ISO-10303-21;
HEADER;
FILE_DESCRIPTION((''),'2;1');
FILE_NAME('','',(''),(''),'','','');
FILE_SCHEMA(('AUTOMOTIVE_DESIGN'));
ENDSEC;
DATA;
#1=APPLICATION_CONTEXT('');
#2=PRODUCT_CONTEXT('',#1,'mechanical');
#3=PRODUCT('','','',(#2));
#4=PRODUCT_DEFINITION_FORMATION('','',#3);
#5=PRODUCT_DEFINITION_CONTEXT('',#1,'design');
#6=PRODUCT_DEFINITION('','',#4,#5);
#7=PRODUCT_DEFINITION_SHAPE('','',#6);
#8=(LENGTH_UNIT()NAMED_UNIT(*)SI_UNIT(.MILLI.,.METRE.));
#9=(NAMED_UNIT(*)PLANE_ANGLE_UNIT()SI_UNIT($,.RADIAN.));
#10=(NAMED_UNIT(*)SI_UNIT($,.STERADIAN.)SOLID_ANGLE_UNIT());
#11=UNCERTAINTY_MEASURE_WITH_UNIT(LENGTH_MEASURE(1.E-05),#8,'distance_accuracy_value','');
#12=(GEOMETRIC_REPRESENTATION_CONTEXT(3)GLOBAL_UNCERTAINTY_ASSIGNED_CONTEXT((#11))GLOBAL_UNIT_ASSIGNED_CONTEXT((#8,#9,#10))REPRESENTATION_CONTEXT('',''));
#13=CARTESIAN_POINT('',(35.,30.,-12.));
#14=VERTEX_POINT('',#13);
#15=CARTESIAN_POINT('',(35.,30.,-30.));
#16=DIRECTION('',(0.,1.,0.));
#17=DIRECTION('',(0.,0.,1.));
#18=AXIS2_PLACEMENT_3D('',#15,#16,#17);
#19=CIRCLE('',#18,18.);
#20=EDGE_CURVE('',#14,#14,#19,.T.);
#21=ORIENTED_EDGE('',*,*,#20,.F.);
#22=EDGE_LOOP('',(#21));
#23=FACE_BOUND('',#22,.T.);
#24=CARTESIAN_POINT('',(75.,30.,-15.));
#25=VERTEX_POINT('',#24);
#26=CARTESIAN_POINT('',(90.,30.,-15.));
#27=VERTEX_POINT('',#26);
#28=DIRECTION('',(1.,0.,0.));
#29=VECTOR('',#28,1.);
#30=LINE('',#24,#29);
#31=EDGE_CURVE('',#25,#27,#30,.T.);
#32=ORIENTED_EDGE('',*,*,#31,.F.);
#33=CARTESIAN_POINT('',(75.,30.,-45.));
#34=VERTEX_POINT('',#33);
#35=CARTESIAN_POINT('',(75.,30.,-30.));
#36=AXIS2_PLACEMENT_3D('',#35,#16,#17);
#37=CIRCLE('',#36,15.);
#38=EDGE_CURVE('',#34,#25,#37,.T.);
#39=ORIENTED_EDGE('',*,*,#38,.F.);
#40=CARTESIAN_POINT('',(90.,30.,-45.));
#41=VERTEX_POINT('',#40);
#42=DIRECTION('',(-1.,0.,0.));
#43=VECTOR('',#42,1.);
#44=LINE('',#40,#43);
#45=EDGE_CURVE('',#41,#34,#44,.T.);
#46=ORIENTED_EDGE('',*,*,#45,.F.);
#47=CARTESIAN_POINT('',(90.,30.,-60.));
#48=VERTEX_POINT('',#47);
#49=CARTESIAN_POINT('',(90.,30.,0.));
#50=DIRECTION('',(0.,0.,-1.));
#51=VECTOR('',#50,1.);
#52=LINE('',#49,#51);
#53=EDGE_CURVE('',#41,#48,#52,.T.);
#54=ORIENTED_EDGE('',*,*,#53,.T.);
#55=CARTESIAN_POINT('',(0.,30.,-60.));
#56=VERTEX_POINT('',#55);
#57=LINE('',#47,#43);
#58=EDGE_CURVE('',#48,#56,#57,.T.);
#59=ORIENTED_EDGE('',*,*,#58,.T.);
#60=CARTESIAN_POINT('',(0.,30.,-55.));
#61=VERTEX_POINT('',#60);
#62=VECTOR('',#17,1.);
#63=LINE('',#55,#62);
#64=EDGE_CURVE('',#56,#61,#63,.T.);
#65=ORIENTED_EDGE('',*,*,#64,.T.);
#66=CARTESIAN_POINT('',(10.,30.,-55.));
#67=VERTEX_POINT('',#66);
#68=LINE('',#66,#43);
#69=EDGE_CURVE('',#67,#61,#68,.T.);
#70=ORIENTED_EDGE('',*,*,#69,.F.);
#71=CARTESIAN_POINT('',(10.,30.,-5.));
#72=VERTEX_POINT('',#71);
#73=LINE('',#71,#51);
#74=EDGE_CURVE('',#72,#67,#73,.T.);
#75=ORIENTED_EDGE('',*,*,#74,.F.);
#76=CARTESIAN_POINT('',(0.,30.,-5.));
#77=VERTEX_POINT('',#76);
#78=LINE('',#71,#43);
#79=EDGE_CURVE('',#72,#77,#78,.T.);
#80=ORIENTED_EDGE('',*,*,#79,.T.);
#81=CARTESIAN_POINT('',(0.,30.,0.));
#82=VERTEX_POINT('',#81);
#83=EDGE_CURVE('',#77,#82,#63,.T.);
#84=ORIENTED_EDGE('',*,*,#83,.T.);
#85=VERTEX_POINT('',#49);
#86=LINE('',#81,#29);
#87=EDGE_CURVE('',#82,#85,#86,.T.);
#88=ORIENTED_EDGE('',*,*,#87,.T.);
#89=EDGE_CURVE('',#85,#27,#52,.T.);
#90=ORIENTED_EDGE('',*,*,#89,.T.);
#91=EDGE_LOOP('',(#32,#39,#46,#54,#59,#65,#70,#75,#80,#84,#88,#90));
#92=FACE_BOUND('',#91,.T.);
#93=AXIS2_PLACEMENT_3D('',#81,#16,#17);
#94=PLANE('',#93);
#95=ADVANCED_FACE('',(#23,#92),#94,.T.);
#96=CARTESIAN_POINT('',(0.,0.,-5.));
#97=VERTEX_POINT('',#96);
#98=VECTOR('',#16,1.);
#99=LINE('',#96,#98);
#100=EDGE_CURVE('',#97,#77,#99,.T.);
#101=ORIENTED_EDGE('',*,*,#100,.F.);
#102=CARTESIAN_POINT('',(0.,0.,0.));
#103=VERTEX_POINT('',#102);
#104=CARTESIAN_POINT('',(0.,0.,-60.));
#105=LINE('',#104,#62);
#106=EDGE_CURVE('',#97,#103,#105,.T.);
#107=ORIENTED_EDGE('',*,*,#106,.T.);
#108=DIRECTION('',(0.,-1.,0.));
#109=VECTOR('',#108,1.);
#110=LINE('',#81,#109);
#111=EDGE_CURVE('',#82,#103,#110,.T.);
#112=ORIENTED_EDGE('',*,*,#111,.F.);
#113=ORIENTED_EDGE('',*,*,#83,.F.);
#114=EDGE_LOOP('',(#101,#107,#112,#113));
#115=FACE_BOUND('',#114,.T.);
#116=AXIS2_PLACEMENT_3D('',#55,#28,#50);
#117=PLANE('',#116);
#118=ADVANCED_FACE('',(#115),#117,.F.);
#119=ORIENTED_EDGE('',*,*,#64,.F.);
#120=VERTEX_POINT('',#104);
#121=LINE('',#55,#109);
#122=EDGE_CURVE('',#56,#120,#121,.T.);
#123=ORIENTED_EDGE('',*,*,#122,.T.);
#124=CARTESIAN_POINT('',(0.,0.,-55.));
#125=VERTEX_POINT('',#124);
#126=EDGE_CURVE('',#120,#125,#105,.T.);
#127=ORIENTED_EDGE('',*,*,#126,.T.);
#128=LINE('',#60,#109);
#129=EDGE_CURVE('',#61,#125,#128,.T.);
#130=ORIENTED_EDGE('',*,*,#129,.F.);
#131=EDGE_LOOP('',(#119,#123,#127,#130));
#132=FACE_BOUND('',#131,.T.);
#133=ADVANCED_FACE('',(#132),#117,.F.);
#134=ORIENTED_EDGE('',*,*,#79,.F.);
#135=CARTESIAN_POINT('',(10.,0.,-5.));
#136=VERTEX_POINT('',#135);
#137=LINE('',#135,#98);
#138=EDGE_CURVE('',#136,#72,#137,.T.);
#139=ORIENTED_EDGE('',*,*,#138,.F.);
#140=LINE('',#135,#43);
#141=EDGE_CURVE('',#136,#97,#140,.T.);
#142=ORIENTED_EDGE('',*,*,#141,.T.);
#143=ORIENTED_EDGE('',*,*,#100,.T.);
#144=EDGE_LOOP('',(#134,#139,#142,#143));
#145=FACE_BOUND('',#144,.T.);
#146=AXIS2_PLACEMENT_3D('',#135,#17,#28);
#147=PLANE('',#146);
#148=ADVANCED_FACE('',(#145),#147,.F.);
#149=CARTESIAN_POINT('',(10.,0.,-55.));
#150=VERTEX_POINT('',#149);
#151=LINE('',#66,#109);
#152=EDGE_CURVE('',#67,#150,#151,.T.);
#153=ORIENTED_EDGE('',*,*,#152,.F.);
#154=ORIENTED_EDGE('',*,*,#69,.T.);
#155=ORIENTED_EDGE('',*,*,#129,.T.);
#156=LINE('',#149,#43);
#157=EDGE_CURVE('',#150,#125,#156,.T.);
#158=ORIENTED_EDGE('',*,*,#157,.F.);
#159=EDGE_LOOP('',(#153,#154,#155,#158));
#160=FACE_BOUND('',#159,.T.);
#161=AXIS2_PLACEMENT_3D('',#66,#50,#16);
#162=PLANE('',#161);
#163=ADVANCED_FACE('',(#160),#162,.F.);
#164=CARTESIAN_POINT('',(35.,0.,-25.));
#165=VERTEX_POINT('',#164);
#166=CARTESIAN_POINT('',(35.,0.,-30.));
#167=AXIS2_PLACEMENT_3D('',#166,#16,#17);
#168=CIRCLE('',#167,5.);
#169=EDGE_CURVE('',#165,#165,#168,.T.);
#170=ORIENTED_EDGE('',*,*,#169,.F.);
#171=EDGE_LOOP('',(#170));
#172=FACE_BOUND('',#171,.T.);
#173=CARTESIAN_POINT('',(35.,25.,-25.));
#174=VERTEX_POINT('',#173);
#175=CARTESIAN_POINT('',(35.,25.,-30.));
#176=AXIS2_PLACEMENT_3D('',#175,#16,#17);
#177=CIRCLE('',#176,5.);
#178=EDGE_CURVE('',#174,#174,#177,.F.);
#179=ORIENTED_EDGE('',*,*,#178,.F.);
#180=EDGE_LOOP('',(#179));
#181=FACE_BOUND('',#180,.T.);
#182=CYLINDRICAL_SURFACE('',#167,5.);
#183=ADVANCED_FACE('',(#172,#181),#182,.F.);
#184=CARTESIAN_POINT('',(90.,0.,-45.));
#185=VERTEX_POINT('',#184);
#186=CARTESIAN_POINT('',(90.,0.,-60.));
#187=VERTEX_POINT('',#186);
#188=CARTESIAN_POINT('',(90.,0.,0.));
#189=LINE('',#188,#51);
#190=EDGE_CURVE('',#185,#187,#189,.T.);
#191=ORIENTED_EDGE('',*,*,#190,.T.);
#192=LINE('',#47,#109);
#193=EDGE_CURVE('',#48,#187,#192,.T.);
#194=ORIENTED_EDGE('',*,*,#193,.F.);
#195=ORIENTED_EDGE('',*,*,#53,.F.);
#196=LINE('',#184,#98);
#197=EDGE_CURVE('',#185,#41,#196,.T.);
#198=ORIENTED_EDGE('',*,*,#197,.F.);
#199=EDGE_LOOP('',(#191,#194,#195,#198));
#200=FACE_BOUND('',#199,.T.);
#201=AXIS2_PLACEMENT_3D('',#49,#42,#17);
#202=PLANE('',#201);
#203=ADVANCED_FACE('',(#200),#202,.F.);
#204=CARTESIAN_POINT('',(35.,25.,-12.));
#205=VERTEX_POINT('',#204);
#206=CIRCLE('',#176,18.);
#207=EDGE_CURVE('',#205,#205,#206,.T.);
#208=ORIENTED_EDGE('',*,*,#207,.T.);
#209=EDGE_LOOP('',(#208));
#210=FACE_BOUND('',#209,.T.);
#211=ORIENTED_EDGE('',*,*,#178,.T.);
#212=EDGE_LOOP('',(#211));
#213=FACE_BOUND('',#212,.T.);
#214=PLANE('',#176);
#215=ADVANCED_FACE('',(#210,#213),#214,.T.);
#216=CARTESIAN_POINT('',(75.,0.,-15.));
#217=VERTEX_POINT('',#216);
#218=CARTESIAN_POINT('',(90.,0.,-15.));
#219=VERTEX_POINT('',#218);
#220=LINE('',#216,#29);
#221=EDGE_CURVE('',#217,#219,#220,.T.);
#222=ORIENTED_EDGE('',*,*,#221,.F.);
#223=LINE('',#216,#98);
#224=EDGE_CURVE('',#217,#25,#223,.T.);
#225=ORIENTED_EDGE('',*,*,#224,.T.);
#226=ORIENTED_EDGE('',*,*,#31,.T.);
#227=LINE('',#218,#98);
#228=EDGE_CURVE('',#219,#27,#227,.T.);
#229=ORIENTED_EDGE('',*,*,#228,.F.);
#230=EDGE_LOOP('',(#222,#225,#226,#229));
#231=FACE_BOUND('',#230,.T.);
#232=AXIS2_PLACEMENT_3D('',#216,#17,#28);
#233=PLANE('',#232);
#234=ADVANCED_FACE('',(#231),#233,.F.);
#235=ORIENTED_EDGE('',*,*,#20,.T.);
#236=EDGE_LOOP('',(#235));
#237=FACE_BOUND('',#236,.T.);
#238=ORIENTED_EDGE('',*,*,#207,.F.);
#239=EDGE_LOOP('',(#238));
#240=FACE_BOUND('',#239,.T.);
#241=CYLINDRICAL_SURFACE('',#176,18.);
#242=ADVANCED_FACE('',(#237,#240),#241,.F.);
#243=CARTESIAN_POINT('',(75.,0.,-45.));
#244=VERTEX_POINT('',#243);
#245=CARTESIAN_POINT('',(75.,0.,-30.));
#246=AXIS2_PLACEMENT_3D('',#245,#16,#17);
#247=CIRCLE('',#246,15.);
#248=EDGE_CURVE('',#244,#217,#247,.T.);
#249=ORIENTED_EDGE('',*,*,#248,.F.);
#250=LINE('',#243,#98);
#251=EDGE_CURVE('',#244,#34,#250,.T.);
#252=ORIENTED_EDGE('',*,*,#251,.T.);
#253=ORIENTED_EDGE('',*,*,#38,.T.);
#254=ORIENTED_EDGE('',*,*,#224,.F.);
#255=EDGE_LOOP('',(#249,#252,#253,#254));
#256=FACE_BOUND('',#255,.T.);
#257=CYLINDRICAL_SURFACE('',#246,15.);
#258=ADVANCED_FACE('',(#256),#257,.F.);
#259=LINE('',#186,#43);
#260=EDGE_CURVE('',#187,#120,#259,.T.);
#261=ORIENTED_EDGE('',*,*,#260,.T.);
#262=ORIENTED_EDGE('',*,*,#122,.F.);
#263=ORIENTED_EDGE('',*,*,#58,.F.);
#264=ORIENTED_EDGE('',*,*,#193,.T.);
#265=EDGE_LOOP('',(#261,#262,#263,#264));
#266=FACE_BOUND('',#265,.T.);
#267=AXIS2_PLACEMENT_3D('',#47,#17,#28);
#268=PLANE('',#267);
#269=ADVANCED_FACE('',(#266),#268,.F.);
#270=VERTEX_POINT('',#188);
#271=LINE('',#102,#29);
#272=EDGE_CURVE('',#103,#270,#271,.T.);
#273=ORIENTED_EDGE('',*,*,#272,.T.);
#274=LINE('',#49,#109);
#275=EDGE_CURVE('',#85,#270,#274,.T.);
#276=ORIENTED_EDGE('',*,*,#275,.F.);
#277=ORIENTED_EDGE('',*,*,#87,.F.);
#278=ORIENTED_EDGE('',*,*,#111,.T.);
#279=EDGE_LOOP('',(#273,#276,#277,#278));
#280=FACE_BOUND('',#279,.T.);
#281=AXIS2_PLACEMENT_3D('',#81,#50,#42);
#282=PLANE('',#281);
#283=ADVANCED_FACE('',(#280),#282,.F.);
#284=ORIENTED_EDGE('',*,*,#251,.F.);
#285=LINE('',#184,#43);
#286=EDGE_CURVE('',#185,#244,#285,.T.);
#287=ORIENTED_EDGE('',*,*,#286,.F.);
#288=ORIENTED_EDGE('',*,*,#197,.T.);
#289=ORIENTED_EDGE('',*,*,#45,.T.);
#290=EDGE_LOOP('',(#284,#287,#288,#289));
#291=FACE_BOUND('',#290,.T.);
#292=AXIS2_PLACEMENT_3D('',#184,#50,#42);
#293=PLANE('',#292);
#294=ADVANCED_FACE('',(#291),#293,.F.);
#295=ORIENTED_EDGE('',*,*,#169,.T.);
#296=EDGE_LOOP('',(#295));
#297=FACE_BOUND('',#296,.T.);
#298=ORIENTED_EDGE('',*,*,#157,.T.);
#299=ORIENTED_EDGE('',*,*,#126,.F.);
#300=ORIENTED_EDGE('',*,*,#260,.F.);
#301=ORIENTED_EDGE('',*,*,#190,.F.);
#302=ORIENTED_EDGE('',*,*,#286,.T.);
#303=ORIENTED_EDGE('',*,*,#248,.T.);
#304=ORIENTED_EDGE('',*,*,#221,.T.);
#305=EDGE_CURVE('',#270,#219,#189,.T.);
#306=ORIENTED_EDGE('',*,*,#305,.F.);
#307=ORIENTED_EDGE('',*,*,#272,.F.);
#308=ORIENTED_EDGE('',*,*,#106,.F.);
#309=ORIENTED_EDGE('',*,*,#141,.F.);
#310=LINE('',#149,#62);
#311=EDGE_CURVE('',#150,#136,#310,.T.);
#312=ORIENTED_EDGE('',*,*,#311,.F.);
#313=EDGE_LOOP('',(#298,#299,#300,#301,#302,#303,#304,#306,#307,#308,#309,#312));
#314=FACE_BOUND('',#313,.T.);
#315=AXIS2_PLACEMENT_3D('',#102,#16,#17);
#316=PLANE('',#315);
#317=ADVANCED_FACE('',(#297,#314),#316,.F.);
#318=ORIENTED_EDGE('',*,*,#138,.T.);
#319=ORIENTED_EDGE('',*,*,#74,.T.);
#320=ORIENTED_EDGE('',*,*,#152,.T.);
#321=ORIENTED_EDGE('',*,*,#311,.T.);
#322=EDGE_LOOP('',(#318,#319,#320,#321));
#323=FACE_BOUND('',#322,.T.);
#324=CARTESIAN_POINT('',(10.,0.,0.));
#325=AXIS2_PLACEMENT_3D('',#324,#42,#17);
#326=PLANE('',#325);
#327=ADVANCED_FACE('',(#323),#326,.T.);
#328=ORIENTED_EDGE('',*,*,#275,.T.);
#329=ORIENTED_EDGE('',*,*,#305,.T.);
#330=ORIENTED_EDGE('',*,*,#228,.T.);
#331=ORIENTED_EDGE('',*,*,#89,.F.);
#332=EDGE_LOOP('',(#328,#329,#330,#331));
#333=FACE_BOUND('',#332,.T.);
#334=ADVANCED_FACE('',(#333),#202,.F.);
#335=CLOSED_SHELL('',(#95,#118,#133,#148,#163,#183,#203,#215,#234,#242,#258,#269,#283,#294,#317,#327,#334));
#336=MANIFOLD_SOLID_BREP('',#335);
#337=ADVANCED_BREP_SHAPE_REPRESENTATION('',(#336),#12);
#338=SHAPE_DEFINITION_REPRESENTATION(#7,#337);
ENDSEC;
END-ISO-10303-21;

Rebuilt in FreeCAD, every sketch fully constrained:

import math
import FreeCAD as App
import Part
import Sketcher
from FreeCAD import Vector
Q = App.Units.Quantity

doc = App.newDocument("Part")
body = doc.addObject("PartDesign::Body", "Body")

# Sketch on XZ plane
sketch1 = body.newObject("Sketcher::SketchObject", "Sketch")
sketch1.AttachmentSupport = (doc.getObject("XZ_Plane"), [""])
sketch1.MapMode = "FlatFace"
sketch1.addGeometry(Part.LineSegment(Vector(0, -60, 0), Vector(0, 0, 0)), False)
sketch1.addGeometry(Part.LineSegment(Vector(0, 0, 0), Vector(90, 0, 0)), False)
sketch1.addGeometry(Part.LineSegment(Vector(90, 0, 0), Vector(90, -60, 0)), False)
sketch1.addGeometry(Part.LineSegment(Vector(90, -60, 0), Vector(0, -60, 0)), False)
sketch1.addConstraint(Sketcher.Constraint("Coincident", 0, 2, 1, 1))
sketch1.addConstraint(Sketcher.Constraint("Coincident", 1, 2, 2, 1))
sketch1.addConstraint(Sketcher.Constraint("Coincident", 2, 2, 3, 1))
sketch1.addConstraint(Sketcher.Constraint("Coincident", 3, 2, 0, 1))
sketch1.addConstraint(Sketcher.Constraint("Vertical", 0))
sketch1.addConstraint(Sketcher.Constraint("Horizontal", 1))
sketch1.addConstraint(Sketcher.Constraint("Vertical", 2))
sketch1.addConstraint(Sketcher.Constraint("Horizontal", 3))
sketch1.addConstraint(Sketcher.Constraint("Coincident", 0, 2, -1, 1))
sketch1.addConstraint(Sketcher.Constraint("DistanceX", 1, 1, 1, 2, Q("90 mm")))
sketch1.addConstraint(Sketcher.Constraint("DistanceY", 0, 1, 0, 2, Q("60 mm")))
pad1 = body.newObject("PartDesign::Pad", "Pad")
pad1.Profile = sketch1
pad1.Length = 30
pad1.Reversed = True

# Sketch on XZ plane
sketch2 = body.newObject("Sketcher::SketchObject", "Sketch001")
sketch2.AttachmentSupport = (doc.getObject("XZ_Plane"), [""])
sketch2.MapMode = "FlatFace"
sketch2.AttachmentOffset = App.Placement(Vector(0, 0, -30), App.Rotation())
sketch2.addGeometry(Part.LineSegment(Vector(90, -45, 0), Vector(75, -45, 0)), False)
sketch2.addGeometry(Part.ArcOfCircle(Part.Circle(Vector(75, -30, 0), Vector(0, 0, 1), 15), math.radians(90), math.radians(270)), False)
sketch2.addGeometry(Part.LineSegment(Vector(75, -15, 0), Vector(90, -15, 0)), False)
sketch2.addGeometry(Part.LineSegment(Vector(90, -15, 0), Vector(90, -45, 0)), False)
sketch2.addConstraint(Sketcher.Constraint("Tangent", 0, 2, 1, 2))
sketch2.addConstraint(Sketcher.Constraint("Tangent", 1, 1, 2, 1))
sketch2.addConstraint(Sketcher.Constraint("Coincident", 2, 2, 3, 1))
sketch2.addConstraint(Sketcher.Constraint("Coincident", 3, 2, 0, 1))
sketch2.addConstraint(Sketcher.Constraint("Horizontal", 0))
sketch2.addConstraint(Sketcher.Constraint("Horizontal", 2))
sketch2.addConstraint(Sketcher.Constraint("Vertical", 3))
sketch2.addConstraint(Sketcher.Constraint("Radius", 1, Q("15 mm")))
sketch2.addConstraint(Sketcher.Constraint("DistanceX", 0, 2, 0, 1, Q("15 mm")))
sketch2.addConstraint(Sketcher.Constraint("DistanceX", -1, 1, 1, 3, Q("75 mm")))
sketch2.addConstraint(Sketcher.Constraint("DistanceY", 1, 3, -1, 1, Q("30 mm")))
pocket1 = body.newObject("PartDesign::Pocket", "Pocket")
pocket1.Profile = sketch2
pocket1.Type = "ThroughAll"
pocket1.Reversed = True

# Sketch on YZ plane
sketch3 = body.newObject("Sketcher::SketchObject", "Sketch002")
sketch3.AttachmentSupport = (doc.getObject("YZ_Plane"), [""])
sketch3.MapMode = "FlatFace"
sketch3.addGeometry(Part.LineSegment(Vector(30, -55, 0), Vector(0, -55, 0)), False)
sketch3.addGeometry(Part.LineSegment(Vector(0, -55, 0), Vector(0, -5, 0)), False)
sketch3.addGeometry(Part.LineSegment(Vector(0, -5, 0), Vector(30, -5, 0)), False)
sketch3.addGeometry(Part.LineSegment(Vector(30, -5, 0), Vector(30, -55, 0)), False)
sketch3.addConstraint(Sketcher.Constraint("Coincident", 0, 2, 1, 1))
sketch3.addConstraint(Sketcher.Constraint("Coincident", 1, 2, 2, 1))
sketch3.addConstraint(Sketcher.Constraint("Coincident", 2, 2, 3, 1))
sketch3.addConstraint(Sketcher.Constraint("Coincident", 3, 2, 0, 1))
sketch3.addConstraint(Sketcher.Constraint("Horizontal", 0))
sketch3.addConstraint(Sketcher.Constraint("Vertical", 1))
sketch3.addConstraint(Sketcher.Constraint("Horizontal", 2))
sketch3.addConstraint(Sketcher.Constraint("Vertical", 3))
sketch3.addConstraint(Sketcher.Constraint("PointOnObject", 0, 2, -2))
sketch3.addConstraint(Sketcher.Constraint("DistanceX", 0, 2, 0, 1, Q("30 mm")))
sketch3.addConstraint(Sketcher.Constraint("DistanceY", 1, 1, 1, 2, Q("50 mm")))
sketch3.addConstraint(Sketcher.Constraint("DistanceY", 0, 2, -1, 1, Q("55 mm")))
pocket2 = body.newObject("PartDesign::Pocket", "Pocket001")
pocket2.Profile = sketch3
pocket2.Length = 10
pocket2.Reversed = True

# Sketch on XZ plane
sketch4 = body.newObject("Sketcher::SketchObject", "Sketch003")
sketch4.AttachmentSupport = (doc.getObject("XZ_Plane"), [""])
sketch4.MapMode = "FlatFace"
sketch4.AttachmentOffset = App.Placement(Vector(0, 0, -30), App.Rotation())
sketch4.addGeometry(Part.Circle(Vector(35, -30, 0), Vector(0, 0, 1), 5), False)
sketch4.addConstraint(Sketcher.Constraint("Diameter", 0, Q("10 mm")))
sketch4.addConstraint(Sketcher.Constraint("DistanceX", -1, 1, 0, 3, Q("35 mm")))
sketch4.addConstraint(Sketcher.Constraint("DistanceY", 0, 3, -1, 1, Q("30 mm")))
pocket3 = body.newObject("PartDesign::Pocket", "Pocket002")
pocket3.Profile = sketch4
pocket3.Type = "ThroughAll"
pocket3.Reversed = True

# Sketch on XZ plane
sketch5 = body.newObject("Sketcher::SketchObject", "Sketch004")
sketch5.AttachmentSupport = (doc.getObject("XZ_Plane"), [""])
sketch5.MapMode = "FlatFace"
sketch5.AttachmentOffset = App.Placement(Vector(0, 0, -30), App.Rotation())
sketch5.addGeometry(Part.Circle(Vector(35, -30, 0), Vector(0, 0, 1), 18), False)
sketch5.addConstraint(Sketcher.Constraint("Diameter", 0, Q("36 mm")))
sketch5.addConstraint(Sketcher.Constraint("DistanceX", -1, 1, 0, 3, Q("35 mm")))
sketch5.addConstraint(Sketcher.Constraint("DistanceY", 0, 3, -1, 1, Q("30 mm")))
pocket4 = body.newObject("PartDesign::Pocket", "Pocket003")
pocket4.Profile = sketch5
pocket4.Length = 5
pocket4.Reversed = True

doc.recompute()
